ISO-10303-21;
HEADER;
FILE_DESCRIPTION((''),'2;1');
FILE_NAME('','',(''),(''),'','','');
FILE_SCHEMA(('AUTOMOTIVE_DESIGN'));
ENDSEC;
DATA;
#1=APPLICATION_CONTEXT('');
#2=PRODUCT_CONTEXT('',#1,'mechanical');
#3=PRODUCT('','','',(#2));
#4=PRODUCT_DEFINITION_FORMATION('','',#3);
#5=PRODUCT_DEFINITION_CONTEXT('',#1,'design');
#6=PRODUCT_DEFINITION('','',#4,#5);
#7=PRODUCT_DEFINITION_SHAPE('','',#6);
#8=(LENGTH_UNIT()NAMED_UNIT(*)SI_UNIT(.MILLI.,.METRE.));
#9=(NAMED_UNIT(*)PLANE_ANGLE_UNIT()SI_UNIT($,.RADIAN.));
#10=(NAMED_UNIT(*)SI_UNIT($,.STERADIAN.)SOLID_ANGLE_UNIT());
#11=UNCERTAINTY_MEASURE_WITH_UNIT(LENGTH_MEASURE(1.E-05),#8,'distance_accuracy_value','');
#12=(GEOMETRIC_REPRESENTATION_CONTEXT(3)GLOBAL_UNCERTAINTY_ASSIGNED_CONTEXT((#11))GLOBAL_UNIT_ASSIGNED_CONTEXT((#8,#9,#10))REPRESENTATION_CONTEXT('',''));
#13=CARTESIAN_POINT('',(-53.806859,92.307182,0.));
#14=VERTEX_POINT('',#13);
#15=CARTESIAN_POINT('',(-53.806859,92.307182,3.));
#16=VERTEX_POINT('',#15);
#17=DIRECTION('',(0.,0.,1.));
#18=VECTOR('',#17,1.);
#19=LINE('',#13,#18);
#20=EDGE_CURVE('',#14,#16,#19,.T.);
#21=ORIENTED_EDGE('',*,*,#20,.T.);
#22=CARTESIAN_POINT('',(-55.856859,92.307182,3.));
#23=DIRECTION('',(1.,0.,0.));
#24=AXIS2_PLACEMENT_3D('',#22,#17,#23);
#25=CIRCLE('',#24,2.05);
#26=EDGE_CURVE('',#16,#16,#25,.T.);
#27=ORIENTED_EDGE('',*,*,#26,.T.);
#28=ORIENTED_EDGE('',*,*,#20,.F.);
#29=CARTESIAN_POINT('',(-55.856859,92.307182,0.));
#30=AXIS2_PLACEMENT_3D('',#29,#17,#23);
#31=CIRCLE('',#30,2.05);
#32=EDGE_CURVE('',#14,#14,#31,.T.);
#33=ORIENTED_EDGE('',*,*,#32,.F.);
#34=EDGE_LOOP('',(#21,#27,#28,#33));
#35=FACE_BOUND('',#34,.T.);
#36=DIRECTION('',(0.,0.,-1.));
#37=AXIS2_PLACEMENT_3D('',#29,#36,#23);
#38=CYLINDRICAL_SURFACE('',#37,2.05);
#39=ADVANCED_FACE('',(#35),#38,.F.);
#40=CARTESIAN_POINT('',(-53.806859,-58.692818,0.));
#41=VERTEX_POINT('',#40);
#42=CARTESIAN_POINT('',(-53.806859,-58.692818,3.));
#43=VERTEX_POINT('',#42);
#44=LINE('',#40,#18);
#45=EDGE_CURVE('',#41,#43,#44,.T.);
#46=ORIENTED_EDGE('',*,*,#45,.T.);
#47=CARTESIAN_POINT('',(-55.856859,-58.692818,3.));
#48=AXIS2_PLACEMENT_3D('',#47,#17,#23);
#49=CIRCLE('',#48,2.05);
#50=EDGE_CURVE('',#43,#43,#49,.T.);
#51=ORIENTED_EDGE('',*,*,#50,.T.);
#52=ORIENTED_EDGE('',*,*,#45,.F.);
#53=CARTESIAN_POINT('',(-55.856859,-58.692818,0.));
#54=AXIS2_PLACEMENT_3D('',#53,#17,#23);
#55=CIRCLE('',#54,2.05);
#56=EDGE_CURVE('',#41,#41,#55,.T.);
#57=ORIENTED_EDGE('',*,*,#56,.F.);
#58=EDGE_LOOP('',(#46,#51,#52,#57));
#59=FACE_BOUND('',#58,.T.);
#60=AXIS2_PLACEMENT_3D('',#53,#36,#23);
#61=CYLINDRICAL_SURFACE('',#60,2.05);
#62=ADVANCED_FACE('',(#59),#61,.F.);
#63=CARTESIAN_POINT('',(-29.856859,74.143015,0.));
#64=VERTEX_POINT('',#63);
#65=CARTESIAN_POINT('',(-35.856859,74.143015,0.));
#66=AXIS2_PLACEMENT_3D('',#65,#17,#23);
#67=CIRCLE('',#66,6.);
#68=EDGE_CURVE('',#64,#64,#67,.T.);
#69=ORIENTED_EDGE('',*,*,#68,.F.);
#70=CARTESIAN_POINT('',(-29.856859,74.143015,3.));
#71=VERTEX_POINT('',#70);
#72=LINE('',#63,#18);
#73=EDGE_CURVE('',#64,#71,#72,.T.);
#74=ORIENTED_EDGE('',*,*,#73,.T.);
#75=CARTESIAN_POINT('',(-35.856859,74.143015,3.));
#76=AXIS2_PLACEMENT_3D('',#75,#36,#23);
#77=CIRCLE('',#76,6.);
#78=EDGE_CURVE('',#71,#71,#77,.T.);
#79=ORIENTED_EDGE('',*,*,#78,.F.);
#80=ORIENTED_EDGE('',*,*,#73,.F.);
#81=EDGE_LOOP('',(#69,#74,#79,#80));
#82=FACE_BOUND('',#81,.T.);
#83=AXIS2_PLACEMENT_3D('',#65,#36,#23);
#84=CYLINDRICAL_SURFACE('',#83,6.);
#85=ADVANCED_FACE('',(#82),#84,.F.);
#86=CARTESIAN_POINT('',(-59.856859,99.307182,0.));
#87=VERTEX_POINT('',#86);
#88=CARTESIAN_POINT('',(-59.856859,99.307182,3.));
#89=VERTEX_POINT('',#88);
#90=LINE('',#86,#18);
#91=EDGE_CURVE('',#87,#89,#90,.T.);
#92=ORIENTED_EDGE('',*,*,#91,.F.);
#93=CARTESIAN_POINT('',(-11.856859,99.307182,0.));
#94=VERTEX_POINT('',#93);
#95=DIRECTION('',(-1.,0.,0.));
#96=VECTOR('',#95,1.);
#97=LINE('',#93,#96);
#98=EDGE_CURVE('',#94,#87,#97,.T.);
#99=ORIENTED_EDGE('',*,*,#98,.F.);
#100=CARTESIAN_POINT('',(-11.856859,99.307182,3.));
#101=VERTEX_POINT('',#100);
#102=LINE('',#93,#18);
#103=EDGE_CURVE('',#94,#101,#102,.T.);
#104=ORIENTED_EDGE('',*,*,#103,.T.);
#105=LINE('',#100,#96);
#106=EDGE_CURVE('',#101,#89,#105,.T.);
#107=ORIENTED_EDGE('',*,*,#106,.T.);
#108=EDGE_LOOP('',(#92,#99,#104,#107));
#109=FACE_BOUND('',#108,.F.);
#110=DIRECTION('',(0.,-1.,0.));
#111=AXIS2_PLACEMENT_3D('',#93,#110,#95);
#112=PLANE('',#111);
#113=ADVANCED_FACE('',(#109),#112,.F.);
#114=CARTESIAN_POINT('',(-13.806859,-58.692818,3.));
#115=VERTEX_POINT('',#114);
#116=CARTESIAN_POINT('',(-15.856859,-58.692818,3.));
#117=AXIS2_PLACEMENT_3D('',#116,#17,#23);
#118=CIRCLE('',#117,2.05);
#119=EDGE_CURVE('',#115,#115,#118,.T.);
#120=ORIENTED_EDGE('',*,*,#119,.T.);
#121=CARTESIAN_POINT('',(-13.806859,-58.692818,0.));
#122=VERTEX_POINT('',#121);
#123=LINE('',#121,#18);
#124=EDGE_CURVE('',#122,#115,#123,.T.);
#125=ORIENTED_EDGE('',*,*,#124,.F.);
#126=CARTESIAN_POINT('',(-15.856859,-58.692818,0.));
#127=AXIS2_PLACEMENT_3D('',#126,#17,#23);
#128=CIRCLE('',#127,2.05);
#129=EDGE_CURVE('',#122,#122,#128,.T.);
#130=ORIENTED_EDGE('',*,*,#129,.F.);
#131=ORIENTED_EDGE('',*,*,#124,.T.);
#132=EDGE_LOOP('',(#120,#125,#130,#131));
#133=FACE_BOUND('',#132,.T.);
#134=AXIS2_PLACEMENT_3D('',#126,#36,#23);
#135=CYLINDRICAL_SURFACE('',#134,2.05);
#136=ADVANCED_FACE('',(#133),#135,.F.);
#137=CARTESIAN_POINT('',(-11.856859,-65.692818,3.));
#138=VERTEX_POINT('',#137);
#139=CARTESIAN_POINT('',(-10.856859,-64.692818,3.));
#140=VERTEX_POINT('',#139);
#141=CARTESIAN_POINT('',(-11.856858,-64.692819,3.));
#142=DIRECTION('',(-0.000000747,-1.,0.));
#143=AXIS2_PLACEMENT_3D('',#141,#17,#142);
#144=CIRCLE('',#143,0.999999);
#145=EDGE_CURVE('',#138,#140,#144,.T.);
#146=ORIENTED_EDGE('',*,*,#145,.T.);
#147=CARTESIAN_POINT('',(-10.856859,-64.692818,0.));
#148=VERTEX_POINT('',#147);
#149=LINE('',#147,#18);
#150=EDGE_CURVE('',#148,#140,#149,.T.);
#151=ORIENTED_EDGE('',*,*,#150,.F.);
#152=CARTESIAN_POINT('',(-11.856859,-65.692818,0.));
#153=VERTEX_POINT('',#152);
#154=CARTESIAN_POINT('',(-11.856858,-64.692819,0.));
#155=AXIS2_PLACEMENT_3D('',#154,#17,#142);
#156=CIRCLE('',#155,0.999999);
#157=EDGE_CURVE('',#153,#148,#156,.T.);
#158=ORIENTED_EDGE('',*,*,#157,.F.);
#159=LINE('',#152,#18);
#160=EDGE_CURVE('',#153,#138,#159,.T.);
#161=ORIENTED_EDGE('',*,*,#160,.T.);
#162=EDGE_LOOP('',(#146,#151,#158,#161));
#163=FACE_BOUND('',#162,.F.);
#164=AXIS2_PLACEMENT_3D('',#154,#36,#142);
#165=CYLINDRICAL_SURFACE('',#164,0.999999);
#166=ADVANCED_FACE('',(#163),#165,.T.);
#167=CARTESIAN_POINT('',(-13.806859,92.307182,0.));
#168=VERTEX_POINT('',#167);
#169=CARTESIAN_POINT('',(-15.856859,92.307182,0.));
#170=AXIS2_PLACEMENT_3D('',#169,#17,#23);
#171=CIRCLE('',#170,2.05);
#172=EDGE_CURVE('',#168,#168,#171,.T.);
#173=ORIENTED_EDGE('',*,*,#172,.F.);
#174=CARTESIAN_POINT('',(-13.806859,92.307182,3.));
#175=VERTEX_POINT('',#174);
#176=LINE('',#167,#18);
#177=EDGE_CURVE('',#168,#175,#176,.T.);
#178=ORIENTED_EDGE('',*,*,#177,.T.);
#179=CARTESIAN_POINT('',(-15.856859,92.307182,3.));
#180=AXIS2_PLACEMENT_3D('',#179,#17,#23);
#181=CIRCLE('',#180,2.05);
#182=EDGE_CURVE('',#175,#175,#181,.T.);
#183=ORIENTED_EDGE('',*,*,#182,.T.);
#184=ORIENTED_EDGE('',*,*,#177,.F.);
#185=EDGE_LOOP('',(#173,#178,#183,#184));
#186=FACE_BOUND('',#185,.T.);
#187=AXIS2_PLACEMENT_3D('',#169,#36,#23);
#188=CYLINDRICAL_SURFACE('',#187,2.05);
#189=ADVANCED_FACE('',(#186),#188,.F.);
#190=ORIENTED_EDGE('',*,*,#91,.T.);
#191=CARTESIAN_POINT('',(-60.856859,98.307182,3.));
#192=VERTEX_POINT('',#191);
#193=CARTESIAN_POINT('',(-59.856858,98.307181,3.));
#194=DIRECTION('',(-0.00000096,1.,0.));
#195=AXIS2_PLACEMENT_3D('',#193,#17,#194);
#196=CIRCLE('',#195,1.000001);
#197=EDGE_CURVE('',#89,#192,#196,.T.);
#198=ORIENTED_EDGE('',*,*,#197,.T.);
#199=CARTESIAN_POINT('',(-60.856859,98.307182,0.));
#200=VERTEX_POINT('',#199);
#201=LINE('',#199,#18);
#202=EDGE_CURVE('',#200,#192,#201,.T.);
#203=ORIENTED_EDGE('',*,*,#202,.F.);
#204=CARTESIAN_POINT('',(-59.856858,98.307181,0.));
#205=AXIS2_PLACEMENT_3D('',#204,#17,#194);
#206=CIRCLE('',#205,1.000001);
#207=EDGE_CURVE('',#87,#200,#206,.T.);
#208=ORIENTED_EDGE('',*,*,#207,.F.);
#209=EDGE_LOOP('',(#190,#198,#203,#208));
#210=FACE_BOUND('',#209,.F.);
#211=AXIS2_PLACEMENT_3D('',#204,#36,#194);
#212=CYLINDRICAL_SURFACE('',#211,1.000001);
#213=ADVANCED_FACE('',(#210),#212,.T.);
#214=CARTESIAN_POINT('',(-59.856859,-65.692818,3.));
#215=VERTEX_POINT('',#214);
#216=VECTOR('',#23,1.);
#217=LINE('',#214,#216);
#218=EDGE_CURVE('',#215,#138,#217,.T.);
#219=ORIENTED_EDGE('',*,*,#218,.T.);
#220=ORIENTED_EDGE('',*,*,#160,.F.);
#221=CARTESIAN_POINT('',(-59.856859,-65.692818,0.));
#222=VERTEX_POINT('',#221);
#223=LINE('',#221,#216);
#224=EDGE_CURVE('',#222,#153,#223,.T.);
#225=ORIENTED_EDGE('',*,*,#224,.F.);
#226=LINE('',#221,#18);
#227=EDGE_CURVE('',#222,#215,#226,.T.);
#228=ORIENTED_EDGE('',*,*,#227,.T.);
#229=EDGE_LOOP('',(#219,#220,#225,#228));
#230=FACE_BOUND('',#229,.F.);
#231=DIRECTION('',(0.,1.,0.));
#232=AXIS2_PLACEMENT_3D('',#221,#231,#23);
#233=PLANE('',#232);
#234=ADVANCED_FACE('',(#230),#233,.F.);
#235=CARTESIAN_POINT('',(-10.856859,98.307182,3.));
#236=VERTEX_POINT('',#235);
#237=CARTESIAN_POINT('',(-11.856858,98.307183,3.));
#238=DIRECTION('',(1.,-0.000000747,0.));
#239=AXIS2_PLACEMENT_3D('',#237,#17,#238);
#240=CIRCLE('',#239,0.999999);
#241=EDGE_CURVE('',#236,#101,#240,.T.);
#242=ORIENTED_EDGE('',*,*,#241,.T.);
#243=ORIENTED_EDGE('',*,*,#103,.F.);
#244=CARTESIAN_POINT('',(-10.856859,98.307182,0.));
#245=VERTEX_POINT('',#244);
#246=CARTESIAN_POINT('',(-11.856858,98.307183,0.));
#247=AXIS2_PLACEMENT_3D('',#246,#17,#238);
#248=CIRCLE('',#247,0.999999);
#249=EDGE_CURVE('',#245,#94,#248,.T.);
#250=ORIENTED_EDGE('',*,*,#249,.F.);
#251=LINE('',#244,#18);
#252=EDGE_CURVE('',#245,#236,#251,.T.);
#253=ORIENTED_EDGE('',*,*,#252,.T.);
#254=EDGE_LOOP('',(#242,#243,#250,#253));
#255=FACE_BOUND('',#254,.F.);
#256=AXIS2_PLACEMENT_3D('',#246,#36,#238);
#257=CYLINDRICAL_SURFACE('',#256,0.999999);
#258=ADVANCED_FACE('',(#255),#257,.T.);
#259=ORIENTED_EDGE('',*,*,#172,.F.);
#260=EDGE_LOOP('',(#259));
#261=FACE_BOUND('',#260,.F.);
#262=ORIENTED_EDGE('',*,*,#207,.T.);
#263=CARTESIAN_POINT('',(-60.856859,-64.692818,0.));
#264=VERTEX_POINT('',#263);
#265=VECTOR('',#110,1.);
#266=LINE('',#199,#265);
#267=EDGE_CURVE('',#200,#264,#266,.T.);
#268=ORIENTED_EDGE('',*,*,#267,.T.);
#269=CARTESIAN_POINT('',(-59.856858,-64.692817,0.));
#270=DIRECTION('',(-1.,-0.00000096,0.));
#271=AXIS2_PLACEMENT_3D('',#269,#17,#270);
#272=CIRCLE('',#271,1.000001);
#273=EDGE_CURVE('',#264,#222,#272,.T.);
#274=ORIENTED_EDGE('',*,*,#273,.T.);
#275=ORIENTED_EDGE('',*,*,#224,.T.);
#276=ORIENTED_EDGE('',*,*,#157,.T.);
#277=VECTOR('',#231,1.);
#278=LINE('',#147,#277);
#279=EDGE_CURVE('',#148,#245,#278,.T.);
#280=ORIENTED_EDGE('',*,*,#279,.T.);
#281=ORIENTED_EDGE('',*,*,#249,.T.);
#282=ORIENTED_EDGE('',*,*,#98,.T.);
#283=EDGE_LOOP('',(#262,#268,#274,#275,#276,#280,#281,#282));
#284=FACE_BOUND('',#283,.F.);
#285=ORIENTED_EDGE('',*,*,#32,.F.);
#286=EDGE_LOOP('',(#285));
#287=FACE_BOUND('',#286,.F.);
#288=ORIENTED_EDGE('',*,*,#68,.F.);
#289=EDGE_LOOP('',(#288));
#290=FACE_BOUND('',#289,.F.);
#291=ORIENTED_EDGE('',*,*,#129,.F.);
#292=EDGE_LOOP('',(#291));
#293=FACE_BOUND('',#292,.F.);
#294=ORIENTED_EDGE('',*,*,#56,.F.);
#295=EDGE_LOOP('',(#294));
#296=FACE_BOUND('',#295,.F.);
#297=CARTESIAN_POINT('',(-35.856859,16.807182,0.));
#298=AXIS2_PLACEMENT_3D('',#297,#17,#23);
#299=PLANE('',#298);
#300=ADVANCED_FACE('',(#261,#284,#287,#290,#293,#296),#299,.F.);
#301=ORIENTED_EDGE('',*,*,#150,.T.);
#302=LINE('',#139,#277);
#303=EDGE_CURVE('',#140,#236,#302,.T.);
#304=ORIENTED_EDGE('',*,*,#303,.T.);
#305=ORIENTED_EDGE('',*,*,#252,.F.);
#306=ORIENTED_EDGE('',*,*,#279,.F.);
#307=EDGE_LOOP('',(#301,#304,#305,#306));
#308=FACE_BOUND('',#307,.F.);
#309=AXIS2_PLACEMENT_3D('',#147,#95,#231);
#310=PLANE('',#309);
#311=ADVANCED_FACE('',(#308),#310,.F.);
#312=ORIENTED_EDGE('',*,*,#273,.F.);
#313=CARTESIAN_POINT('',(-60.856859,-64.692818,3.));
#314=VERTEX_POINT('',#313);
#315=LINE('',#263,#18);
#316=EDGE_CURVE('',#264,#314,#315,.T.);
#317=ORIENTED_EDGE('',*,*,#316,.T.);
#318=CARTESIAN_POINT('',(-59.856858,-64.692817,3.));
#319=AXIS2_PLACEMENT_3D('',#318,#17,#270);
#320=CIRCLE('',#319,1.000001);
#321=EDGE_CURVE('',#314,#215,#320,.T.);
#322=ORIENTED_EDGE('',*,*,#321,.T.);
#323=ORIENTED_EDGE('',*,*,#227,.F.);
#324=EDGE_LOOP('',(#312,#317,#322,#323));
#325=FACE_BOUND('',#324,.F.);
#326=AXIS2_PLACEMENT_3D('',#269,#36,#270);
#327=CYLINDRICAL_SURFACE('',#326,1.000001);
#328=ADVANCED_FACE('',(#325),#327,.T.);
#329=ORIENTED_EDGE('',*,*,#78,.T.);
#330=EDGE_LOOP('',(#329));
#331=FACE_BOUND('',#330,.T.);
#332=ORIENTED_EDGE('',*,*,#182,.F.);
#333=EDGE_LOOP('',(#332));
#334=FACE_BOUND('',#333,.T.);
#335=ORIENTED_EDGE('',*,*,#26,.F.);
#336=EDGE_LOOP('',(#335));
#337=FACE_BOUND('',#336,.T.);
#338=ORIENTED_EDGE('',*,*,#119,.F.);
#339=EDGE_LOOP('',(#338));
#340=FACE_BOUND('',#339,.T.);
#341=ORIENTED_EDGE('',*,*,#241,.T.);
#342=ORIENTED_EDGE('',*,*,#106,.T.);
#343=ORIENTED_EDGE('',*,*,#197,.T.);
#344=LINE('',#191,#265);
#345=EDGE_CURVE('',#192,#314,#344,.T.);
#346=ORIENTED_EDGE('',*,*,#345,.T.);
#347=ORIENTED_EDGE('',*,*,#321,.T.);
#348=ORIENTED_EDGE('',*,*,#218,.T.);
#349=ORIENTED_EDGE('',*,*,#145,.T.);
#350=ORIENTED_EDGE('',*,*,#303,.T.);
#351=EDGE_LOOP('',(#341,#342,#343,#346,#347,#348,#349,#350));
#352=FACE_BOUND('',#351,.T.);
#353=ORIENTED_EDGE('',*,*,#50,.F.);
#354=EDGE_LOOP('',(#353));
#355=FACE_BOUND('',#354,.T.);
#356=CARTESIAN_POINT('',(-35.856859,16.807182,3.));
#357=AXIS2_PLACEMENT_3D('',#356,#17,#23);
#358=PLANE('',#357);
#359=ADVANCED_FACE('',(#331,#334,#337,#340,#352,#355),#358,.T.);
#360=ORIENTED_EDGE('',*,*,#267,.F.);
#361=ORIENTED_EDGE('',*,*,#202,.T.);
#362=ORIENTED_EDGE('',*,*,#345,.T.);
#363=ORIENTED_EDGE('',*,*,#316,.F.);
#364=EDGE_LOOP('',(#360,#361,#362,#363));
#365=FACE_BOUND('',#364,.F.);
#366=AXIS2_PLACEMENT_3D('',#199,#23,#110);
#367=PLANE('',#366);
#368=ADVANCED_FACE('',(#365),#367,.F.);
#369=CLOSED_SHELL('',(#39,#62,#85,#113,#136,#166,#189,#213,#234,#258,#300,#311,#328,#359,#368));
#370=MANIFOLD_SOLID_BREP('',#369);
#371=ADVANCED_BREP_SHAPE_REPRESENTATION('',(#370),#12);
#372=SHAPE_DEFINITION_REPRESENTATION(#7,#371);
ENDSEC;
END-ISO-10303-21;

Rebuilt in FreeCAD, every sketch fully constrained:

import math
import FreeCAD as App
import Part
import Sketcher

V = App.Vector

doc = App.newDocument("Part")
params = doc.addObject("Spreadsheet::Sheet", "Params")
for row, (alias, value) in enumerate([
    ("sketch1_radius", "1.000001 mm"),
    ("sketch1_diameter", "4.1 mm"),
    ("sketch1_width", "48 mm"),
    ("sketch1_height", "163 mm"),
    ("pad1_length", "3 mm"),
    ("sketch2_diameter", "12 mm"),
    ("pocket1_length", "25 mm"),
], start=1):
    params.set(f"A{row}", alias)
    params.set(f"B{row}", "=" + value)
    params.setAlias(f"B{row}", alias)

body = doc.addObject("PartDesign::Body", "Body")

# Sketch on XY plane
sketch1 = body.newObject("Sketcher::SketchObject", "Sketch")
sketch1.AttachmentSupport = (doc.getObject("XY_Plane"), [""])
sketch1.MapMode = "FlatFace"
sketch1.addGeometry(Part.LineSegment(V(-11.9, 99.3, 0), V(-59.9, 99.3, 0)), False)
sketch1.addGeometry(Part.ArcOfCircle(Part.Circle(V(-59.9, 98.3, 0), V(0, 0, 1), 1), math.radians(90), math.radians(180)), False)
sketch1.addGeometry(Part.LineSegment(V(-60.9, 98.3, 0), V(-60.9, -64.7, 0)), False)
sketch1.addGeometry(Part.ArcOfCircle(Part.Circle(V(-59.9, -64.7, 0), V(0, 0, 1), 1), math.radians(-180), math.radians(-90)), False)
sketch1.addGeometry(Part.LineSegment(V(-59.9, -65.7, 0), V(-11.9, -65.7, 0)), False)
sketch1.addGeometry(Part.ArcOfCircle(Part.Circle(V(-11.9, -64.7, 0), V(0, 0, 1), 1), math.radians(-90), math.radians(0)), False)
sketch1.addGeometry(Part.LineSegment(V(-10.9, -64.7, 0), V(-10.9, 98.3, 0)), False)
sketch1.addGeometry(Part.ArcOfCircle(Part.Circle(V(-11.9, 98.3, 0), V(0, 0, 1), 1), math.radians(0), math.radians(90)), False)
sketch1.addGeometry(Part.Circle(V(-55.9, -58.7, 0), V(0, 0, 1), 2), False)
sketch1.addGeometry(Part.Circle(V(-15.9, -58.7, 0), V(0, 0, 1), 2), False)
sketch1.addGeometry(Part.Circle(V(-55.9, 92.3, 0), V(0, 0, 1), 2), False)
sketch1.addGeometry(Part.Circle(V(-15.9, 92.3, 0), V(0, 0, 1), 2), False)
sketch1.addConstraint(Sketcher.Constraint("Tangent", 0, 2, 1, 1))
sketch1.addConstraint(Sketcher.Constraint("Tangent", 1, 2, 2, 1))
sketch1.addConstraint(Sketcher.Constraint("Tangent", 2, 2, 3, 1))
sketch1.addConstraint(Sketcher.Constraint("Tangent", 3, 2, 4, 1))
sketch1.addConstraint(Sketcher.Constraint("Tangent", 4, 2, 5, 1))
sketch1.addConstraint(Sketcher.Constraint("Tangent", 5, 2, 6, 1))
sketch1.addConstraint(Sketcher.Constraint("Tangent", 6, 2, 7, 1))
sketch1.addConstraint(Sketcher.Constraint("Tangent", 7, 2, 0, 1))
sketch1.addConstraint(Sketcher.Constraint("Horizontal", 0))
sketch1.addConstraint(Sketcher.Constraint("Vertical", 2))
sketch1.addConstraint(Sketcher.Constraint("Horizontal", 4))
sketch1.addConstraint(Sketcher.Constraint("Vertical", 6))
sketch1.addConstraint(Sketcher.Constraint("Equal", 1, 3))
sketch1.addConstraint(Sketcher.Constraint("Equal", 3, 5))
sketch1.addConstraint(Sketcher.Constraint("Equal", 5, 7))
sketch1.addConstraint(Sketcher.Constraint("Equal", 8, 9))
sketch1.addConstraint(Sketcher.Constraint("Equal", 9, 10))
sketch1.addConstraint(Sketcher.Constraint("Equal", 10, 11))
sketch1.addConstraint(Sketcher.Constraint("Horizontal", 8, 3, 9, 3))
sketch1.addConstraint(Sketcher.Constraint("Horizontal", 10, 3, 11, 3))
sketch1.addConstraint(Sketcher.Constraint("Vertical", 8, 3, 10, 3))
sketch1.addConstraint(Sketcher.Constraint("Vertical", 9, 3, 11, 3))
sketch1.addConstraint(Sketcher.Constraint("Radius", 1, 1.000001))
sketch1.addConstraint(Sketcher.Constraint("Diameter", 8, 4.1))
sketch1.addConstraint(Sketcher.Constraint("DistanceX", 0, 2, 0, 1, 48.0))
sketch1.addConstraint(Sketcher.Constraint("DistanceY", 2, 2, 2, 1, 163.0))
sketch1.addConstraint(Sketcher.Constraint("DistanceX", 3, 3, 8, 3, 3.999999))
sketch1.addConstraint(Sketcher.Constraint("DistanceY", 3, 3, 8, 3, 5.999999))
sketch1.addConstraint(Sketcher.Constraint("DistanceX", 9, 3, 5, 3, 4.000001))
sketch1.addConstraint(Sketcher.Constraint("DistanceY", 10, 3, 1, 3, 5.999999))
sketch1.addConstraint(Sketcher.Constraint("DistanceX", 1, 3, -1, 1, 59.856858))
sketch1.addConstraint(Sketcher.Constraint("DistanceY", -1, 1, 1, 3, 98.307181))
sketch1.setExpression("Constraints[22]", "Params.sketch1_radius")
sketch1.setExpression("Constraints[23]", "Params.sketch1_diameter")
sketch1.setExpression("Constraints[24]", "Params.sketch1_width")
sketch1.setExpression("Constraints[25]", "Params.sketch1_height")
pad1 = body.newObject("PartDesign::Pad", "Pad")
pad1.Profile = sketch1
pad1.setExpression("Length", "Params.pad1_length")

# Sketch on XY plane
sketch2 = body.newObject("Sketcher::SketchObject", "Sketch001")
sketch2.AttachmentSupport = (doc.getObject("XY_Plane"), [""])
sketch2.MapMode = "FlatFace"
sketch2.addGeometry(Part.Circle(V(-36, 74, 0), V(0, 0, 1), 6), False)
sketch2.addConstraint(Sketcher.Constraint("Diameter", 0, 12.0))
sketch2.addConstraint(Sketcher.Constraint("DistanceX", 0, 3, -1, 1, 35.856859))
sketch2.addConstraint(Sketcher.Constraint("DistanceY", -1, 1, 0, 3, 74.143015))
sketch2.setExpression("Constraints[0]", "Params.sketch2_diameter")
pocket1 = body.newObject("PartDesign::Pocket", "Pocket")
pocket1.Profile = sketch2
pocket1.setExpression("Length", "Params.pocket1_length")
pocket1.Reversed = True

doc.recompute()
